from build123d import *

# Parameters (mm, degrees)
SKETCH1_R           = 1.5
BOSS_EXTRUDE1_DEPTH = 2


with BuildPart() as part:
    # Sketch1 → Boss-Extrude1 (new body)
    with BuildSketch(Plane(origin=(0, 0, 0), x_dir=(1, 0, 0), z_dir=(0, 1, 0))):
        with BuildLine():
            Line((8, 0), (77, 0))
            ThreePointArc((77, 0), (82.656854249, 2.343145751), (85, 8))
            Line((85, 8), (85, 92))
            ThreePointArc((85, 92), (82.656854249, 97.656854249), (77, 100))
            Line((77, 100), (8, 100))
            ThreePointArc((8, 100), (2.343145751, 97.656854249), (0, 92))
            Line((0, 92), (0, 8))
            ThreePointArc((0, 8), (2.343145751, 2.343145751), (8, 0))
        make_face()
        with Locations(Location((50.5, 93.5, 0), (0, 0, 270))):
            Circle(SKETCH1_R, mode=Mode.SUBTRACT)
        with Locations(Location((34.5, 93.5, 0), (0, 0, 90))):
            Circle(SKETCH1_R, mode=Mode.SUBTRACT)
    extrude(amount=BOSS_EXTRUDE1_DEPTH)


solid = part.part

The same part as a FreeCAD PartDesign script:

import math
import FreeCAD as App
import Part
import Sketcher
from FreeCAD import Vector

doc = App.newDocument("Part")
params = doc.addObject("Spreadsheet::Sheet", "Params")
for row, (alias, value) in enumerate([
    ("sketch1_diameter", "3 mm"),
    ("sketch1_radius", "8 mm"),
    ("sketch1_width", "69 mm"),
    ("sketch1_height", "84 mm"),
    ("pad1_length", "2 mm"),
], start=1):
    params.set(f"A{row}", alias)
    params.set(f"B{row}", "=" + value)
    params.setAlias(f"B{row}", alias)

body = doc.addObject("PartDesign::Body", "Body")

sketch1 = doc.addObject("Sketcher::SketchObject", "Sketch")
body.addObject(sketch1)
sketch1.AttachmentSupport = (doc.XZ_Plane, [""])
sketch1.MapMode = "FlatFace"
sketch1.addGeometry([
    Part.LineSegment(Vector(8, 0, 0), Vector(77, 0, 0)),
    Part.ArcOfCircle(Part.Circle(Vector(77, -8, 0), Vector(0, 0, 1), 8), math.radians(0), math.radians(90)),
    Part.LineSegment(Vector(85, -8, 0), Vector(85, -92, 0)),
    Part.ArcOfCircle(Part.Circle(Vector(77, -92, 0), Vector(0, 0, 1), 8), math.radians(-90), math.radians(0)),
    Part.LineSegment(Vector(77, -100, 0), Vector(8, -100, 0)),
    Part.ArcOfCircle(Part.Circle(Vector(8, -92, 0), Vector(0, 0, 1), 8), math.radians(-180), math.radians(-90)),
    Part.LineSegment(Vector(0, -92, 0), Vector(0, -8, 0)),
    Part.ArcOfCircle(Part.Circle(Vector(8, -8, 0), Vector(0, 0, 1), 8), math.radians(90), math.radians(180)),
    Part.Circle(Vector(34.5, -93.5, 0), Vector(0, 0, 1), 1.5),
    Part.Circle(Vector(50.5, -93.5, 0), Vector(0, 0, 1), 1.5),
], False)
sketch1.addConstraint([
    Sketcher.Constraint("Tangent", 0, 2, 1, 2),
    Sketcher.Constraint("Tangent", 1, 1, 2, 1),
    Sketcher.Constraint("Tangent", 2, 2, 3, 2),
    Sketcher.Constraint("Tangent", 3, 1, 4, 1),
    Sketcher.Constraint("Tangent", 4, 2, 5, 2),
    Sketcher.Constraint("Tangent", 5, 1, 6, 1),
    Sketcher.Constraint("Tangent", 6, 2, 7, 2),
    Sketcher.Constraint("Tangent", 7, 1, 0, 1),
    Sketcher.Constraint("Horizontal", 0),
    Sketcher.Constraint("Vertical", 2),
    Sketcher.Constraint("Horizontal", 4),
    Sketcher.Constraint("Vertical", 6),
    Sketcher.Constraint("Equal", 1, 3),
    Sketcher.Constraint("Equal", 3, 5),
    Sketcher.Constraint("Equal", 5, 7),
    Sketcher.Constraint("Equal", 8, 9),
    Sketcher.Constraint("PointOnObject", 0, 2, -1),
    Sketcher.Constraint("PointOnObject", 5, 1, -2),
    Sketcher.Constraint("Horizontal", 8, 3, 9, 3),
    Sketcher.Constraint("Diameter", 8, 3.0),
    Sketcher.Constraint("Radius", 1, 8.0),
    Sketcher.Constraint("DistanceX", 0, 1, 0, 2, 69.0),
    Sketcher.Constraint("DistanceY", 2, 2, 2, 1, 84.0),
    Sketcher.Constraint("DistanceX", 8, 3, 9, 3, 16.0),
    Sketcher.Constraint("DistanceX", -1, 1, 8, 3, 34.5),
    Sketcher.Constraint("DistanceY", 8, 3, -1, 1, 93.5),
])
sketch1.setExpression("Constraints[19]", "Params.sketch1_diameter")
sketch1.setExpression("Constraints[20]", "Params.sketch1_radius")
sketch1.setExpression("Constraints[21]", "Params.sketch1_width")
sketch1.setExpression("Constraints[22]", "Params.sketch1_height")
pad1 = doc.addObject("PartDesign::Pad", "Pad")
body.addObject(pad1)
pad1.Profile = sketch1
pad1.setExpression("Length", "Params.pad1_length")
pad1.Reversed = True

doc.recompute()
